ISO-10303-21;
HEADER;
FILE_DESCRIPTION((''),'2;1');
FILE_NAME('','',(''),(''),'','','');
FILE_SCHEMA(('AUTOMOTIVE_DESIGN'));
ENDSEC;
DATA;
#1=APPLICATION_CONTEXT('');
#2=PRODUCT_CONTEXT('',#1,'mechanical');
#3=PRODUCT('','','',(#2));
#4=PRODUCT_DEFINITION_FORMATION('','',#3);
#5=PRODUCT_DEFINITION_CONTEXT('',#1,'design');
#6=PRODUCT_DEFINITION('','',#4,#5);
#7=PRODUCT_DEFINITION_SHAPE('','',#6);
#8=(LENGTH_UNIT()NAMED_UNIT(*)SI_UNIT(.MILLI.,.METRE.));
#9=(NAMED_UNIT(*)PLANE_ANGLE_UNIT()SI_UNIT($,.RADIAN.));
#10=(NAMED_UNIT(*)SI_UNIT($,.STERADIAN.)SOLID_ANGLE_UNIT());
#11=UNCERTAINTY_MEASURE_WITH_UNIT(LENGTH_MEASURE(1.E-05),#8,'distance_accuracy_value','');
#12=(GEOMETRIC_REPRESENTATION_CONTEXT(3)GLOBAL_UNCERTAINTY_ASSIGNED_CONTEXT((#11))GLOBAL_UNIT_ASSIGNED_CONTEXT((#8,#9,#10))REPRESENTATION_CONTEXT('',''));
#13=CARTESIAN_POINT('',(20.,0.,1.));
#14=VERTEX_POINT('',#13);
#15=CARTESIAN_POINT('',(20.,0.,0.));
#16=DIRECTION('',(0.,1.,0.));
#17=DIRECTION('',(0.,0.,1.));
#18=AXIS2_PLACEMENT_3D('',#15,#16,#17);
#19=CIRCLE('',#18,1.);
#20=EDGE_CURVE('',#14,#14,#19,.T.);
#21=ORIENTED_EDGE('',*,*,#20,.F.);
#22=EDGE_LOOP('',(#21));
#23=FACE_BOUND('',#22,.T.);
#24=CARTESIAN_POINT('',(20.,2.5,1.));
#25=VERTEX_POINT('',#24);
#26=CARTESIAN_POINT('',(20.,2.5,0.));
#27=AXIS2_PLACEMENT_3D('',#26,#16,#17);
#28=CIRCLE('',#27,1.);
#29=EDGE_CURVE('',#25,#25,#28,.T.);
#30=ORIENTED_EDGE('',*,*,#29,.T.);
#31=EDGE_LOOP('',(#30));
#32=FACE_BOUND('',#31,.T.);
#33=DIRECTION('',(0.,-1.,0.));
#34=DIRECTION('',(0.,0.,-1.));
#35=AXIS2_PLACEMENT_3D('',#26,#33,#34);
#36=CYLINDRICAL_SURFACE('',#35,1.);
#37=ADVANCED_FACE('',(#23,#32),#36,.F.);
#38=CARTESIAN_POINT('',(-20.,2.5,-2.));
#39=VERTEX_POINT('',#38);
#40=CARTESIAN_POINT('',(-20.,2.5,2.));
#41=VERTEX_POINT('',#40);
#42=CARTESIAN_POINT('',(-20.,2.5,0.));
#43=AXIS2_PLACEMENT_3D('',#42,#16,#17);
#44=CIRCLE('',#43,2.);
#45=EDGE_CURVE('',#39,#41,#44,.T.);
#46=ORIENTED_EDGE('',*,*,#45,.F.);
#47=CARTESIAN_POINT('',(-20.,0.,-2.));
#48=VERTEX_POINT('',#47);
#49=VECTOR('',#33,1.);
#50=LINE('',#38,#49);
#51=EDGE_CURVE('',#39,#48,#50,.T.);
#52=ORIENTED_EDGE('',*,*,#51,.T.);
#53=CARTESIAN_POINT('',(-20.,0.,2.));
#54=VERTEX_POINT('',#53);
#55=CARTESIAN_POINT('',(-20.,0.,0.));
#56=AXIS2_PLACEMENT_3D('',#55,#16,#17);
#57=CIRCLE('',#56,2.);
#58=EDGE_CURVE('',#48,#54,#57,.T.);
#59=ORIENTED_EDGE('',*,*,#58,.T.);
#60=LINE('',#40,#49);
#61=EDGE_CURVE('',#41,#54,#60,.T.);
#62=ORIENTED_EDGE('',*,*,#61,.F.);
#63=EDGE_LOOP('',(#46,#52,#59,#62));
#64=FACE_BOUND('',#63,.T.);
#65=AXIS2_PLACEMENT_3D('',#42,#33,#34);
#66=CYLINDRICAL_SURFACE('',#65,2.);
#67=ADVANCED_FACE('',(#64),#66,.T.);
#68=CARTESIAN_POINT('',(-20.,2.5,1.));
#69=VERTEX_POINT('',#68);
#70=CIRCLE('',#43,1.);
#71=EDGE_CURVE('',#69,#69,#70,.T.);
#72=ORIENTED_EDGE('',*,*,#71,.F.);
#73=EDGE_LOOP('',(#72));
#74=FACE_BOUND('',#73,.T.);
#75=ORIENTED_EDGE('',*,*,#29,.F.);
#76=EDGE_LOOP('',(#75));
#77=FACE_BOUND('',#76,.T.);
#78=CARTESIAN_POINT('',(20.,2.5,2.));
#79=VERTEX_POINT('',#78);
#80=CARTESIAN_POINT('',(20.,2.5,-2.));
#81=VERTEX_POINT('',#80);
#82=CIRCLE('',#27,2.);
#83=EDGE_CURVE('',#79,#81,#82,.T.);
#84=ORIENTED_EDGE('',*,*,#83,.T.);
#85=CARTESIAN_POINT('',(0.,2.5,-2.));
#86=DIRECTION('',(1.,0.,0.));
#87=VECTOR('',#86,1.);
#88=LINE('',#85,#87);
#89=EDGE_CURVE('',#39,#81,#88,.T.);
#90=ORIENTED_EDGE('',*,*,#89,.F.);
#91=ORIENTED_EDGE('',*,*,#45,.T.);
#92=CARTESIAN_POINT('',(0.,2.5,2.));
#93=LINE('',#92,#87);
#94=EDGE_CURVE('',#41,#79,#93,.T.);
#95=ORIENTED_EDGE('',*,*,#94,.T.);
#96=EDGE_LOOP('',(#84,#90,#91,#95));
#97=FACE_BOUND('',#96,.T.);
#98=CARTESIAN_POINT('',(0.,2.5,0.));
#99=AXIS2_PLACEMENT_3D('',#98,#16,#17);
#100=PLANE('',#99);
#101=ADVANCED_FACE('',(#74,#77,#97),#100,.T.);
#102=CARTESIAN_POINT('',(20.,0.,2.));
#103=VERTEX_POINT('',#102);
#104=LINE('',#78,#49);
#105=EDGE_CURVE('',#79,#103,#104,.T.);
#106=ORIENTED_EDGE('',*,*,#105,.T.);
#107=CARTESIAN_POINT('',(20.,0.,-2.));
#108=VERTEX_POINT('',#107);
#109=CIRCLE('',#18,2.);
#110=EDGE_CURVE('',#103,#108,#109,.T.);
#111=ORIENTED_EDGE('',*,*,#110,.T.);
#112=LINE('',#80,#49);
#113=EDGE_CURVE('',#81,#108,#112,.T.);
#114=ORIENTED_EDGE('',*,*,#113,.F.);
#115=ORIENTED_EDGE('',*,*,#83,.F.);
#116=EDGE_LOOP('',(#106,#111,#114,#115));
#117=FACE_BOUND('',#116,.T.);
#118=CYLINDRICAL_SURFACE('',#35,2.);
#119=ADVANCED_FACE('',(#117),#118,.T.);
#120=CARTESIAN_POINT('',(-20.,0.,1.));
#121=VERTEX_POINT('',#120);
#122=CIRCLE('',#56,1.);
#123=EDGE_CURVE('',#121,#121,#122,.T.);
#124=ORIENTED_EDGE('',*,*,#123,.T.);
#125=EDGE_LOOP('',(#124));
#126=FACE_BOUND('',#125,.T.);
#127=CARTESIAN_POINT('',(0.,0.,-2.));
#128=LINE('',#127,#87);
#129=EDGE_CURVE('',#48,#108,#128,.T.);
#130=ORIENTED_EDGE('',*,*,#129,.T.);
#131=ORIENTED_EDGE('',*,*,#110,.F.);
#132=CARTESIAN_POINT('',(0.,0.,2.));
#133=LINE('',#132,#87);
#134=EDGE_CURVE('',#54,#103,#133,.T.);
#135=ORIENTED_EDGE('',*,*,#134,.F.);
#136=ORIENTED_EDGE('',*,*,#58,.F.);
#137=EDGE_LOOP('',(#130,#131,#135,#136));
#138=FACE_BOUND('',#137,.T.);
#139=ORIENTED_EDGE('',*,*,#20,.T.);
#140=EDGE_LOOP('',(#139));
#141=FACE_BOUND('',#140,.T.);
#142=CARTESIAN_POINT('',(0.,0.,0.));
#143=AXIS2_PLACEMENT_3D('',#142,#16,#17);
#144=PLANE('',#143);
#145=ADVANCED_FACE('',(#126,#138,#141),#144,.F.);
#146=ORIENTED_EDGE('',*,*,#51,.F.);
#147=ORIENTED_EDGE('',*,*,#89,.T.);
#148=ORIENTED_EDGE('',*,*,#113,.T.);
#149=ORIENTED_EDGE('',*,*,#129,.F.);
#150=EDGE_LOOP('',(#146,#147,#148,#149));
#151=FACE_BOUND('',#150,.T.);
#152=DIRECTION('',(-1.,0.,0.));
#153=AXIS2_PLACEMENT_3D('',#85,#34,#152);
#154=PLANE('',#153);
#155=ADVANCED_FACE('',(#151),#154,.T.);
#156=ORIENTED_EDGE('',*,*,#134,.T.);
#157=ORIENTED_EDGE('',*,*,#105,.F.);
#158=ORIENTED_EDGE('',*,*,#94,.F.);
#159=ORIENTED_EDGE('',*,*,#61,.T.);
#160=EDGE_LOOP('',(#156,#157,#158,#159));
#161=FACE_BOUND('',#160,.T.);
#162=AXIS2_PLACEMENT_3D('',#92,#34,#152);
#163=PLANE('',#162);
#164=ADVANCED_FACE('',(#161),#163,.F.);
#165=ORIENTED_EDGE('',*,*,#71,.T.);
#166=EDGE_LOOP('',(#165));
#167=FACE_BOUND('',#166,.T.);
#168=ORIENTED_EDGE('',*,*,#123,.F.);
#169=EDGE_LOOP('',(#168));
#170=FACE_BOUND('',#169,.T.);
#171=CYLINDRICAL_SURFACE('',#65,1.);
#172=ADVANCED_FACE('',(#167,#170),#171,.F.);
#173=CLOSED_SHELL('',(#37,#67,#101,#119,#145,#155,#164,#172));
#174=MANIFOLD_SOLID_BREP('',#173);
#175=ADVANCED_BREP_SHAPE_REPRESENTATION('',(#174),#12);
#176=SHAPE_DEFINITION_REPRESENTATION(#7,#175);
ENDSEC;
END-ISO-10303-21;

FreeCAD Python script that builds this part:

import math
import FreeCAD as App
import Part
import Sketcher
from FreeCAD import Vector

doc = App.newDocument("Part")
params = doc.addObject("Spreadsheet::Sheet", "Params")
for row, (alias, value) in enumerate([
    ("sketch1_radius", "2 mm"),
    ("sketch1_width", "40 mm"),
    ("pad1_length", "2.5 mm"),
    ("sketch2_diameter", "2 mm"),
], start=1):
    params.set(f"A{row}", alias)
    params.set(f"B{row}", "=" + value)
    params.setAlias(f"B{row}", alias)

body = doc.addObject("PartDesign::Body", "Body")

# Sketch on XZ plane
sketch1 = body.newObject("Sketcher::SketchObject", "Sketch")
sketch1.AttachmentSupport = (doc.getObject("XZ_Plane"), [""])
sketch1.MapMode = "FlatFace"
sketch1.addGeometry([
    Part.LineSegment(Vector(-20, 2, 0), Vector(20, 2, 0)),  # 0
    Part.ArcOfCircle(Part.Circle(Vector(20, 0, 0), Vector(0, 0, 1), 2), math.radians(0), math.radians(90)),  # 1
    Part.ArcOfCircle(Part.Circle(Vector(20, 0, 0), Vector(0, 0, 1), 2), math.radians(-90), math.radians(0)),  # 2
    Part.LineSegment(Vector(20, -2, 0), Vector(-20, -2, 0)),  # 3
    Part.ArcOfCircle(Part.Circle(Vector(-20, 0, 0), Vector(0, 0, 1), 2), math.radians(90), math.radians(270)),  # 4
], False)
sketch1.addConstraint([
    Sketcher.Constraint("Tangent", 0, 2, 1, 2),
    Sketcher.Constraint("Tangent", 1, 1, 2, 2),
    Sketcher.Constraint("Tangent", 2, 1, 3, 1),
    Sketcher.Constraint("Tangent", 3, 2, 4, 2),
    Sketcher.Constraint("Tangent", 4, 1, 0, 1),
    Sketcher.Constraint("Horizontal", 0),
    Sketcher.Constraint("Horizontal", 3),
    Sketcher.Constraint("Equal", 1, 2),
    Sketcher.Constraint("Symmetric", 1, 3, 4, 3, -1, 1),
    Sketcher.Constraint("PointOnObject", 1, 1, -1),
    Sketcher.Constraint("Radius", 1, 2.0),
    Sketcher.Constraint("DistanceX", 0, 1, 0, 2, 40.0),
])
sketch1.setExpression("Constraints[10]", "Params.sketch1_radius")
sketch1.setExpression("Constraints[11]", "Params.sketch1_width")
pad1 = body.newObject("PartDesign::Pad", "Pad")
pad1.Profile = sketch1
pad1.setExpression("Length", "Params.pad1_length")
pad1.Reversed = True

# Sketch on XZ plane
sketch2 = body.newObject("Sketcher::SketchObject", "Sketch001")
sketch2.AttachmentSupport = (doc.getObject("XZ_Plane"), [""])
sketch2.MapMode = "FlatFace"
sketch2.addGeometry([
    Part.Circle(Vector(20, 0, 0), Vector(0, 0, 1), 1),
    Part.Circle(Vector(-20, 0, 0), Vector(0, 0, 1), 1),
], False)
sketch2.addConstraint([
    Sketcher.Constraint("Equal", 0, 1),
    Sketcher.Constraint("Symmetric", 0, 3, 1, 3, -1, 1),
    Sketcher.Constraint("PointOnObject", 0, 3, -1),
    Sketcher.Constraint("Diameter", 0, 2.0),
    Sketcher.Constraint("DistanceX", -1, 1, 0, 3, 20.0),
])
sketch2.setExpression("Constraints[3]", "Params.sketch2_diameter")
pocket1 = body.newObject("PartDesign::Pocket", "Pocket")
pocket1.Profile = sketch2
pocket1.Type = "ThroughAll"

doc.recompute()
